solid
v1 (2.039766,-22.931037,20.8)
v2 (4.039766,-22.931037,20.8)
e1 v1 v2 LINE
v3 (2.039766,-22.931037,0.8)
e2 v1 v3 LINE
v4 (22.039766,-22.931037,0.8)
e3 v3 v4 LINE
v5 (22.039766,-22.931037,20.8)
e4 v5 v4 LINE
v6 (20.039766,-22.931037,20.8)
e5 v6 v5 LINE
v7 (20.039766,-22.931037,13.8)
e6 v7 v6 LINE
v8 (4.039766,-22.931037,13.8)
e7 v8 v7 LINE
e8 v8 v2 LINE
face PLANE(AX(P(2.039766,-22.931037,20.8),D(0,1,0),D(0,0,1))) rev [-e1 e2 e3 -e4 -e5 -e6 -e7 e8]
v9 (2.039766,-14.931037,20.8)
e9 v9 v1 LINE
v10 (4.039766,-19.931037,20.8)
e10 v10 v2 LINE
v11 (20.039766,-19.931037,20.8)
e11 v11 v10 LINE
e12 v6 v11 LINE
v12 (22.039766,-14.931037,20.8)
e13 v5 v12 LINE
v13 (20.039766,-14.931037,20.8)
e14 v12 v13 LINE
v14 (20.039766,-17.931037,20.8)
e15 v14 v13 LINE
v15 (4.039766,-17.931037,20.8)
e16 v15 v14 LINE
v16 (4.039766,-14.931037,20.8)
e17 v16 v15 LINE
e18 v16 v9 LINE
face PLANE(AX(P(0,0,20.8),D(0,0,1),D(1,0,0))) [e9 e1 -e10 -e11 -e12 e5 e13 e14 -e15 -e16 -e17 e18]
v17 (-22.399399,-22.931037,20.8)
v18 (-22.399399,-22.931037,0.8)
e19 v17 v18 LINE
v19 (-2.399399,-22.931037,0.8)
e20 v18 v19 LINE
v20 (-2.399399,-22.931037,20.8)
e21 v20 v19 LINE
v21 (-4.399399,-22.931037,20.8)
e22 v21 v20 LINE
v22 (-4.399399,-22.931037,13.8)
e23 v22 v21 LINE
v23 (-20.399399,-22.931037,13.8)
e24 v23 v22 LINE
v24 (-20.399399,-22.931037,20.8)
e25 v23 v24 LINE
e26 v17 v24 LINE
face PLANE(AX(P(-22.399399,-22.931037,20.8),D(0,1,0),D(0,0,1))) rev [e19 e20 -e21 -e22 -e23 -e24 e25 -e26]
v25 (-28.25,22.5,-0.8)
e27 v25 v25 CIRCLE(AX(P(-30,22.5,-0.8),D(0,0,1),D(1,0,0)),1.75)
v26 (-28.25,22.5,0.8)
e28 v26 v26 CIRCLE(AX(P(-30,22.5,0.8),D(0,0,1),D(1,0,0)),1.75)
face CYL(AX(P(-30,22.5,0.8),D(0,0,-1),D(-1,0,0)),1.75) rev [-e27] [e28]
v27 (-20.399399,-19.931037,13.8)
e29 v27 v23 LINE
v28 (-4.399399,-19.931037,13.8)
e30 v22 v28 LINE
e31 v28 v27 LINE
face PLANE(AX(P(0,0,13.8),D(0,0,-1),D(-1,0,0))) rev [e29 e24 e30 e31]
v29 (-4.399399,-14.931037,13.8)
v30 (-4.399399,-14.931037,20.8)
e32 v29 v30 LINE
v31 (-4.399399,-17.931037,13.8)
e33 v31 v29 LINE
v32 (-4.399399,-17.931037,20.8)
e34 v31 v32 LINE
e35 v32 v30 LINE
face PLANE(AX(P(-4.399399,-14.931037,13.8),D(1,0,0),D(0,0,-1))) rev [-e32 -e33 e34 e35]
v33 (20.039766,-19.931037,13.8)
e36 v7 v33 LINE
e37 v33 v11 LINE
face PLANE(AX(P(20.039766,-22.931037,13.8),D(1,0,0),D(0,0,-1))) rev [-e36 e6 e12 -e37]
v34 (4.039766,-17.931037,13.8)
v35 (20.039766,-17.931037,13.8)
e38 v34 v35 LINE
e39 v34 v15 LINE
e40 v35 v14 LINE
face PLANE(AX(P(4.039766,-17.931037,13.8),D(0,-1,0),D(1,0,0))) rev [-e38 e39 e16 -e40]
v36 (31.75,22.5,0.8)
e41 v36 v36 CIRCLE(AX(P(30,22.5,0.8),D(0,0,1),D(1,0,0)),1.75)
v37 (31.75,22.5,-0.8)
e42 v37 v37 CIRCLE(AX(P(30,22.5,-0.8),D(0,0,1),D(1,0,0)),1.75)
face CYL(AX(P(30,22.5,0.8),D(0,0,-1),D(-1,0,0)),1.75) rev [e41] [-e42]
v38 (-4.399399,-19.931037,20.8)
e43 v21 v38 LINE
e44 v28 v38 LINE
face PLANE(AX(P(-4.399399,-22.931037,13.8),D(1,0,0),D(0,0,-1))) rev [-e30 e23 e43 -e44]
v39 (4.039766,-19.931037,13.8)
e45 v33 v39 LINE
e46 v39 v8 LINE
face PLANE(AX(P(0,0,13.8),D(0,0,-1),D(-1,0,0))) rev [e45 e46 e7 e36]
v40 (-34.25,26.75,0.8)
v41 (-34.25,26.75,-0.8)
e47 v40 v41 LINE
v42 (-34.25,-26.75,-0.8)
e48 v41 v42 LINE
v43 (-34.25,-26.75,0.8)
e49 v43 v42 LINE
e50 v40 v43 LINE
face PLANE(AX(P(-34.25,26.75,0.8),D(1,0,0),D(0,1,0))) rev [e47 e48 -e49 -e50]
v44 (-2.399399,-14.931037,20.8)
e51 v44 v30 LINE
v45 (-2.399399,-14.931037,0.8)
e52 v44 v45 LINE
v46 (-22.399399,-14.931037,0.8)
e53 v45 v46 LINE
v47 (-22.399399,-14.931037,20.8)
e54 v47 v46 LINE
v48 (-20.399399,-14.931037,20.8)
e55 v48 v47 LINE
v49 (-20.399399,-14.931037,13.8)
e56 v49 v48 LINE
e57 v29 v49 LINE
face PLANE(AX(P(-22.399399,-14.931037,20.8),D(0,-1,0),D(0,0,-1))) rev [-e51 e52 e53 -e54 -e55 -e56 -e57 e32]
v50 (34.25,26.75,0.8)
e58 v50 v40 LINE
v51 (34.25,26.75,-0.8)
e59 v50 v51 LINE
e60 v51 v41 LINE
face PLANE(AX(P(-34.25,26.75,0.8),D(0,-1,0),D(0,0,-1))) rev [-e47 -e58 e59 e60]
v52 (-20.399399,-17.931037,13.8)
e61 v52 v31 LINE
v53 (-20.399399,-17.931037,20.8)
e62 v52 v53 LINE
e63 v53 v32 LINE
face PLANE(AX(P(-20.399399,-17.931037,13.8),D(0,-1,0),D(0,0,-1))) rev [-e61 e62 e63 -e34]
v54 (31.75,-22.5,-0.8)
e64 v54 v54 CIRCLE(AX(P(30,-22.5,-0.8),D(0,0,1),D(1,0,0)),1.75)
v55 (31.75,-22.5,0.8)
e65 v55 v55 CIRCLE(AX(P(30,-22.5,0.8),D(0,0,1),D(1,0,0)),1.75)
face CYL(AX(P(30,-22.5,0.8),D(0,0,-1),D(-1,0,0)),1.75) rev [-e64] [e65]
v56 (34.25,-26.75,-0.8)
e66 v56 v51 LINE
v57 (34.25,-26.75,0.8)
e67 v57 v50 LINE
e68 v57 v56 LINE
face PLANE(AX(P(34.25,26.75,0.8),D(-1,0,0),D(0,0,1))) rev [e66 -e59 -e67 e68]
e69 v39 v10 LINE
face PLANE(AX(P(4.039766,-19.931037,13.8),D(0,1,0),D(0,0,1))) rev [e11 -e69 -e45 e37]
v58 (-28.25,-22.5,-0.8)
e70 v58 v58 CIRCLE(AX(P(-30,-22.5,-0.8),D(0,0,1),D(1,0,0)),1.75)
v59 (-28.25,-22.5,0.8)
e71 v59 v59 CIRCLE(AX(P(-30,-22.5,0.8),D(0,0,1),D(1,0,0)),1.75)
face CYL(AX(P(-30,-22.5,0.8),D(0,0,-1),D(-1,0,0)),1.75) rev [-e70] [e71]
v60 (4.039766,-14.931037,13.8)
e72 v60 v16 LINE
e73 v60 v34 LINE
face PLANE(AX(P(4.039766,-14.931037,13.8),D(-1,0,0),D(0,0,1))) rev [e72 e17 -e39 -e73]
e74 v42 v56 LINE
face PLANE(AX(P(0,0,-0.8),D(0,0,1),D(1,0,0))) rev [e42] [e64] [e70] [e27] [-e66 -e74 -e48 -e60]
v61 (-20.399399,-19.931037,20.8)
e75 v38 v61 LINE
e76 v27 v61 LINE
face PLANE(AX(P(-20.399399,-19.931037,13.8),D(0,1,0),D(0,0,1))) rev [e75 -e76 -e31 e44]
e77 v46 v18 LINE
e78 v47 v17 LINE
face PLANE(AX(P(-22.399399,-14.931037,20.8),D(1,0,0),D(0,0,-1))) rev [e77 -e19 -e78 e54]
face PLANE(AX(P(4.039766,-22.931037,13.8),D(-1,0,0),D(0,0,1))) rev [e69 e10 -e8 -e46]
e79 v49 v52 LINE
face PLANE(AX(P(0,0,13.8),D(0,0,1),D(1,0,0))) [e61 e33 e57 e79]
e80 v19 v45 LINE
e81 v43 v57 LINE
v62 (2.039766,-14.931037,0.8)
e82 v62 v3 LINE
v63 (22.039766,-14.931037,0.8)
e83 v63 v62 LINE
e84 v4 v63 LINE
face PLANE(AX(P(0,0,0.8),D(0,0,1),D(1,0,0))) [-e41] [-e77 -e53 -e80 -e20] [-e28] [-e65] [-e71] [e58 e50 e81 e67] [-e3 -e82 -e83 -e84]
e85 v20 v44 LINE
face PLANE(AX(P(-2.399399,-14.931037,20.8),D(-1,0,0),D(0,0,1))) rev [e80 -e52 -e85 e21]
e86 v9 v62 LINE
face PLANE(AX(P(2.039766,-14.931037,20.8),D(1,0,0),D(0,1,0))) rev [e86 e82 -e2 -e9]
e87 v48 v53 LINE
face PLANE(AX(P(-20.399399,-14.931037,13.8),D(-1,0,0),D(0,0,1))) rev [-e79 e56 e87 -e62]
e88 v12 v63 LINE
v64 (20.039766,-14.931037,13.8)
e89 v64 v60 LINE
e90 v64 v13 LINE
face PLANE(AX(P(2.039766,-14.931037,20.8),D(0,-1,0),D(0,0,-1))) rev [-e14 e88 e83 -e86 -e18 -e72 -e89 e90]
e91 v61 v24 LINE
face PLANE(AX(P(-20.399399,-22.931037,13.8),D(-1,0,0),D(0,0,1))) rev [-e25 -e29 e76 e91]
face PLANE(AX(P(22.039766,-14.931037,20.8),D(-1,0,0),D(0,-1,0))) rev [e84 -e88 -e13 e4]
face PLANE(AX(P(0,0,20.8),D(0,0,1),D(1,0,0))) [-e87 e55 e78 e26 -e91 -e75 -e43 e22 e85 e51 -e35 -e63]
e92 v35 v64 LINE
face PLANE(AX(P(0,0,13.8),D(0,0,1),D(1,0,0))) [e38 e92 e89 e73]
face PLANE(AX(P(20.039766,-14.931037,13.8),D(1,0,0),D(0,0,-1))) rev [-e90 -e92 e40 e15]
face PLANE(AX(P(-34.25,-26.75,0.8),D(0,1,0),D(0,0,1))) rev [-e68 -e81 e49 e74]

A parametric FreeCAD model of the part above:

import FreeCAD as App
import Part
import Sketcher

V = App.Vector

doc = App.newDocument("Part")
body = doc.addObject("PartDesign::Body", "Body")

# Sketch on XY plane
sketch1 = body.newObject("Sketcher::SketchObject", "Sketch")
sketch1.AttachmentSupport = (doc.getObject("XY_Plane"), [""])
sketch1.MapMode = "FlatFace"
sketch1.addGeometry([
    Part.LineSegment(V(-34.2, 26.8, 0), V(-34.2, -26.8, 0)),  # 0
    Part.LineSegment(V(-34.2, -26.8, 0), V(34.2, -26.8, 0)),  # 1
    Part.LineSegment(V(34.2, -26.8, 0), V(34.2, 26.8, 0)),  # 2
    Part.LineSegment(V(34.2, 26.8, 0), V(-34.2, 26.8, 0)),  # 3
    Part.Circle(V(-30, -22.5, 0), V(0, 0, 1), 1.8),  # 4
    Part.Circle(V(30, -22.5, 0), V(0, 0, 1), 1.8),  # 5
    Part.Circle(V(-30, 22.5, 0), V(0, 0, 1), 1.8),  # 6
    Part.Circle(V(30, 22.5, 0), V(0, 0, 1), 1.8),  # 7
], False)
sketch1.addConstraint([
    Sketcher.Constraint("Coincident", 0, 2, 1, 1),
    Sketcher.Constraint("Coincident", 1, 2, 2, 1),
    Sketcher.Constraint("Coincident", 2, 2, 3, 1),
    Sketcher.Constraint("Coincident", 3, 2, 0, 1),
    Sketcher.Constraint("Vertical", 0),
    Sketcher.Constraint("Horizontal", 1),
    Sketcher.Constraint("Vertical", 2),
    Sketcher.Constraint("Horizontal", 3),
    Sketcher.Constraint("Equal", 4, 5),
    Sketcher.Constraint("Equal", 5, 6),
    Sketcher.Constraint("Equal", 6, 7),
    Sketcher.Constraint("Symmetric", 5, 3, 6, 3, -1, 1),
    Sketcher.Constraint("Symmetric", 4, 3, 7, 3, -1, 1),
    Sketcher.Constraint("Symmetric", 0, 2, 2, 2, -1, 1),
    Sketcher.Constraint("Symmetric", 4, 3, 5, 3, -2),
    Sketcher.Constraint("Diameter", 4, 3.5),
    Sketcher.Constraint("DistanceX", 1, 1, 1, 2, 68.5),
    Sketcher.Constraint("DistanceY", 0, 2, 0, 1, 53.5),
    Sketcher.Constraint("DistanceX", 4, 3, -1, 1, 30.0),
    Sketcher.Constraint("DistanceY", 4, 3, 6, 3, 45.0),
])
pad1 = body.newObject("PartDesign::Pad", "Pad")
pad1.Profile = sketch1
pad1.Length = 1.6
pad1.Midplane = True

# Sketch on XY plane
sketch2 = body.newObject("Sketcher::SketchObject", "Sketch001")
sketch2.AttachmentSupport = (doc.getObject("XY_Plane"), [""])
sketch2.MapMode = "FlatFace"
sketch2.AttachmentOffset = App.Placement(V(0, 0, 0.8), App.Rotation())
sketch2.addGeometry([
    Part.LineSegment(V(-22, -15, 0), V(-22, -23, 0)),  # 0
    Part.LineSegment(V(-22, -23, 0), V(-2, -23, 0)),  # 1
    Part.LineSegment(V(-2, -23, 0), V(-2, -15, 0)),  # 2
    Part.LineSegment(V(-2, -15, 0), V(-22, -15, 0)),  # 3
    Part.LineSegment(V(2, -15, 0), V(2, -23, 0)),  # 4
    Part.LineSegment(V(2, -23, 0), V(22, -23, 0)),  # 5
    Part.LineSegment(V(22, -23, 0), V(22, -15, 0)),  # 6
    Part.LineSegment(V(22, -15, 0), V(2, -15, 0)),  # 7
], False)
sketch2.addConstraint([
    Sketcher.Constraint("Coincident", 0, 2, 1, 1),
    Sketcher.Constraint("Coincident", 1, 2, 2, 1),
    Sketcher.Constraint("Coincident", 2, 2, 3, 1),
    Sketcher.Constraint("Coincident", 3, 2, 0, 1),
    Sketcher.Constraint("Coincident", 4, 2, 5, 1),
    Sketcher.Constraint("Coincident", 5, 2, 6, 1),
    Sketcher.Constraint("Coincident", 6, 2, 7, 1),
    Sketcher.Constraint("Coincident", 7, 2, 4, 1),
    Sketcher.Constraint("Vertical", 0),
    Sketcher.Constraint("Horizontal", 1),
    Sketcher.Constraint("Vertical", 2),
    Sketcher.Constraint("Horizontal", 3),
    Sketcher.Constraint("Vertical", 4),
    Sketcher.Constraint("Horizontal", 5),
    Sketcher.Constraint("Vertical", 6),
    Sketcher.Constraint("Horizontal", 7),
    Sketcher.Constraint("Horizontal", 1, 2, 4, 2),
    Sketcher.Constraint("Horizontal", 3, 2, 6, 2),
    Sketcher.Constraint("Equal", 3, 5),
    Sketcher.Constraint("DistanceX", 1, 1, 1, 2, 20.0),
    Sketcher.Constraint("DistanceY", 0, 2, 0, 1, 8.0),
    Sketcher.Constraint("DistanceX", 0, 2, -1, 1, 22.399399),
    Sketcher.Constraint("DistanceY", 0, 2, -1, 1, 22.931037),
    Sketcher.Constraint("DistanceX", -1, 1, 4, 2, 2.039766),
])
pad2 = body.newObject("PartDesign::Pad", "Pad001")
pad2.Profile = sketch2
pad2.Length = 20

# Sketch on XY plane
sketch3 = body.newObject("Sketcher::SketchObject", "Sketch002")
sketch3.AttachmentSupport = (doc.getObject("XY_Plane"), [""])
sketch3.MapMode = "FlatFace"
sketch3.AttachmentOffset = App.Placement(V(0, 0, 20.8), App.Rotation())
sketch3.addGeometry([
    Part.LineSegment(V(-20.4, -14.9, 0), V(-20.4, -17.9, 0)),  # 0
    Part.LineSegment(V(-20.4, -17.9, 0), V(-4.4, -17.9, 0)),  # 1
    Part.LineSegment(V(-4.4, -17.9, 0), V(-4.4, -14.9, 0)),  # 2
    Part.LineSegment(V(-4.4, -14.9, 0), V(-20.4, -14.9, 0)),  # 3
    Part.LineSegment(V(-20.4, -19.9, 0), V(-20.4, -22.9, 0)),  # 4
    Part.LineSegment(V(-20.4, -22.9, 0), V(-4.4, -22.9, 0)),  # 5
    Part.LineSegment(V(-4.4, -22.9, 0), V(-4.4, -19.9, 0)),  # 6
    Part.LineSegment(V(-4.4, -19.9, 0), V(-20.4, -19.9, 0)),  # 7
    Part.LineSegment(V(4, -14.9, 0), V(4, -17.9, 0)),  # 8
    Part.LineSegment(V(4, -17.9, 0), V(20, -17.9, 0)),  # 9
    Part.LineSegment(V(20, -17.9, 0), V(20, -14.9, 0)),  # 10
    Part.LineSegment(V(20, -14.9, 0), V(4, -14.9, 0)),  # 11
    Part.LineSegment(V(4, -19.9, 0), V(4, -22.9, 0)),  # 12
    Part.LineSegment(V(4, -22.9, 0), V(20, -22.9, 0)),  # 13
    Part.LineSegment(V(20, -22.9, 0), V(20, -19.9, 0)),  # 14
    Part.LineSegment(V(20, -19.9, 0), V(4, -19.9, 0)),  # 15
], False)
sketch3.addConstraint([
    Sketcher.Constraint("Coincident", 0, 2, 1, 1),
    Sketcher.Constraint("Coincident", 1, 2, 2, 1),
    Sketcher.Constraint("Coincident", 2, 2, 3, 1),
    Sketcher.Constraint("Coincident", 3, 2, 0, 1),
    Sketcher.Constraint("Coincident", 4, 2, 5, 1),
    Sketcher.Constraint("Coincident", 5, 2, 6, 1),
    Sketcher.Constraint("Coincident", 6, 2, 7, 1),
    Sketcher.Constraint("Coincident", 7, 2, 4, 1),
    Sketcher.Constraint("Coincident", 8, 2, 9, 1),
    Sketcher.Constraint("Coincident", 9, 2, 10, 1),
    Sketcher.Constraint("Coincident", 10, 2, 11, 1),
    Sketcher.Constraint("Coincident", 11, 2, 8, 1),
    Sketcher.Constraint("Coincident", 12, 2, 13, 1),
    Sketcher.Constraint("Coincident", 13, 2, 14, 1),
    Sketcher.Constraint("Coincident", 14, 2, 15, 1),
    Sketcher.Constraint("Coincident", 15, 2, 12, 1),
    Sketcher.Constraint("Vertical", 0),
    Sketcher.Constraint("Horizontal", 1),
    Sketcher.Constraint("Vertical", 2),
    Sketcher.Constraint("Horizontal", 3),
    Sketcher.Constraint("Vertical", 4),
    Sketcher.Constraint("Horizontal", 5),
    Sketcher.Constraint("Vertical", 6),
    Sketcher.Constraint("Horizontal", 7),
    Sketcher.Constraint("Vertical", 8),
    Sketcher.Constraint("Horizontal", 9),
    Sketcher.Constraint("Vertical", 10),
    Sketcher.Constraint("Horizontal", 11),
    Sketcher.Constraint("Vertical", 12),
    Sketcher.Constraint("Horizontal", 13),
    Sketcher.Constraint("Vertical", 14),
    Sketcher.Constraint("Horizontal", 15),
    Sketcher.Constraint("Horizontal", 1, 2, 8, 2),
    Sketcher.Constraint("Horizontal", 3, 2, 10, 2),
    Sketcher.Constraint("Horizontal", 5, 2, 12, 2),
    Sketcher.Constraint("Horizontal", 7, 2, 14, 2),
    Sketcher.Constraint("Vertical", 3, 2, 4, 2),
    Sketcher.Constraint("Vertical", 2, 2, 5, 2),
    Sketcher.Constraint("Vertical", 11, 2, 12, 2),
    Sketcher.Constraint("Vertical", 10, 2, 13, 2),
    Sketcher.Constraint("Equal", 7, 9),
    Sketcher.Constraint("Equal", 2, 4),
    Sketcher.Constraint("DistanceX", 1, 1, 1, 2, 16.0),
    Sketcher.Constraint("DistanceY", 0, 2, 0, 1, 3.0),
    Sketcher.Constraint("DistanceY", 4, 2, 0, 2, 5.0),
    Sketcher.Constraint("DistanceX", 0, 2, -1, 1, 20.399399),
    Sketcher.Constraint("DistanceY", 0, 2, -1, 1, 17.931037),
    Sketcher.Constraint("DistanceX", -1, 1, 8, 2, 4.039766),
])
pocket1 = body.newObject("PartDesign::Pocket", "Pocket")
pocket1.Profile = sketch3
pocket1.Length = 7

doc.recompute()
